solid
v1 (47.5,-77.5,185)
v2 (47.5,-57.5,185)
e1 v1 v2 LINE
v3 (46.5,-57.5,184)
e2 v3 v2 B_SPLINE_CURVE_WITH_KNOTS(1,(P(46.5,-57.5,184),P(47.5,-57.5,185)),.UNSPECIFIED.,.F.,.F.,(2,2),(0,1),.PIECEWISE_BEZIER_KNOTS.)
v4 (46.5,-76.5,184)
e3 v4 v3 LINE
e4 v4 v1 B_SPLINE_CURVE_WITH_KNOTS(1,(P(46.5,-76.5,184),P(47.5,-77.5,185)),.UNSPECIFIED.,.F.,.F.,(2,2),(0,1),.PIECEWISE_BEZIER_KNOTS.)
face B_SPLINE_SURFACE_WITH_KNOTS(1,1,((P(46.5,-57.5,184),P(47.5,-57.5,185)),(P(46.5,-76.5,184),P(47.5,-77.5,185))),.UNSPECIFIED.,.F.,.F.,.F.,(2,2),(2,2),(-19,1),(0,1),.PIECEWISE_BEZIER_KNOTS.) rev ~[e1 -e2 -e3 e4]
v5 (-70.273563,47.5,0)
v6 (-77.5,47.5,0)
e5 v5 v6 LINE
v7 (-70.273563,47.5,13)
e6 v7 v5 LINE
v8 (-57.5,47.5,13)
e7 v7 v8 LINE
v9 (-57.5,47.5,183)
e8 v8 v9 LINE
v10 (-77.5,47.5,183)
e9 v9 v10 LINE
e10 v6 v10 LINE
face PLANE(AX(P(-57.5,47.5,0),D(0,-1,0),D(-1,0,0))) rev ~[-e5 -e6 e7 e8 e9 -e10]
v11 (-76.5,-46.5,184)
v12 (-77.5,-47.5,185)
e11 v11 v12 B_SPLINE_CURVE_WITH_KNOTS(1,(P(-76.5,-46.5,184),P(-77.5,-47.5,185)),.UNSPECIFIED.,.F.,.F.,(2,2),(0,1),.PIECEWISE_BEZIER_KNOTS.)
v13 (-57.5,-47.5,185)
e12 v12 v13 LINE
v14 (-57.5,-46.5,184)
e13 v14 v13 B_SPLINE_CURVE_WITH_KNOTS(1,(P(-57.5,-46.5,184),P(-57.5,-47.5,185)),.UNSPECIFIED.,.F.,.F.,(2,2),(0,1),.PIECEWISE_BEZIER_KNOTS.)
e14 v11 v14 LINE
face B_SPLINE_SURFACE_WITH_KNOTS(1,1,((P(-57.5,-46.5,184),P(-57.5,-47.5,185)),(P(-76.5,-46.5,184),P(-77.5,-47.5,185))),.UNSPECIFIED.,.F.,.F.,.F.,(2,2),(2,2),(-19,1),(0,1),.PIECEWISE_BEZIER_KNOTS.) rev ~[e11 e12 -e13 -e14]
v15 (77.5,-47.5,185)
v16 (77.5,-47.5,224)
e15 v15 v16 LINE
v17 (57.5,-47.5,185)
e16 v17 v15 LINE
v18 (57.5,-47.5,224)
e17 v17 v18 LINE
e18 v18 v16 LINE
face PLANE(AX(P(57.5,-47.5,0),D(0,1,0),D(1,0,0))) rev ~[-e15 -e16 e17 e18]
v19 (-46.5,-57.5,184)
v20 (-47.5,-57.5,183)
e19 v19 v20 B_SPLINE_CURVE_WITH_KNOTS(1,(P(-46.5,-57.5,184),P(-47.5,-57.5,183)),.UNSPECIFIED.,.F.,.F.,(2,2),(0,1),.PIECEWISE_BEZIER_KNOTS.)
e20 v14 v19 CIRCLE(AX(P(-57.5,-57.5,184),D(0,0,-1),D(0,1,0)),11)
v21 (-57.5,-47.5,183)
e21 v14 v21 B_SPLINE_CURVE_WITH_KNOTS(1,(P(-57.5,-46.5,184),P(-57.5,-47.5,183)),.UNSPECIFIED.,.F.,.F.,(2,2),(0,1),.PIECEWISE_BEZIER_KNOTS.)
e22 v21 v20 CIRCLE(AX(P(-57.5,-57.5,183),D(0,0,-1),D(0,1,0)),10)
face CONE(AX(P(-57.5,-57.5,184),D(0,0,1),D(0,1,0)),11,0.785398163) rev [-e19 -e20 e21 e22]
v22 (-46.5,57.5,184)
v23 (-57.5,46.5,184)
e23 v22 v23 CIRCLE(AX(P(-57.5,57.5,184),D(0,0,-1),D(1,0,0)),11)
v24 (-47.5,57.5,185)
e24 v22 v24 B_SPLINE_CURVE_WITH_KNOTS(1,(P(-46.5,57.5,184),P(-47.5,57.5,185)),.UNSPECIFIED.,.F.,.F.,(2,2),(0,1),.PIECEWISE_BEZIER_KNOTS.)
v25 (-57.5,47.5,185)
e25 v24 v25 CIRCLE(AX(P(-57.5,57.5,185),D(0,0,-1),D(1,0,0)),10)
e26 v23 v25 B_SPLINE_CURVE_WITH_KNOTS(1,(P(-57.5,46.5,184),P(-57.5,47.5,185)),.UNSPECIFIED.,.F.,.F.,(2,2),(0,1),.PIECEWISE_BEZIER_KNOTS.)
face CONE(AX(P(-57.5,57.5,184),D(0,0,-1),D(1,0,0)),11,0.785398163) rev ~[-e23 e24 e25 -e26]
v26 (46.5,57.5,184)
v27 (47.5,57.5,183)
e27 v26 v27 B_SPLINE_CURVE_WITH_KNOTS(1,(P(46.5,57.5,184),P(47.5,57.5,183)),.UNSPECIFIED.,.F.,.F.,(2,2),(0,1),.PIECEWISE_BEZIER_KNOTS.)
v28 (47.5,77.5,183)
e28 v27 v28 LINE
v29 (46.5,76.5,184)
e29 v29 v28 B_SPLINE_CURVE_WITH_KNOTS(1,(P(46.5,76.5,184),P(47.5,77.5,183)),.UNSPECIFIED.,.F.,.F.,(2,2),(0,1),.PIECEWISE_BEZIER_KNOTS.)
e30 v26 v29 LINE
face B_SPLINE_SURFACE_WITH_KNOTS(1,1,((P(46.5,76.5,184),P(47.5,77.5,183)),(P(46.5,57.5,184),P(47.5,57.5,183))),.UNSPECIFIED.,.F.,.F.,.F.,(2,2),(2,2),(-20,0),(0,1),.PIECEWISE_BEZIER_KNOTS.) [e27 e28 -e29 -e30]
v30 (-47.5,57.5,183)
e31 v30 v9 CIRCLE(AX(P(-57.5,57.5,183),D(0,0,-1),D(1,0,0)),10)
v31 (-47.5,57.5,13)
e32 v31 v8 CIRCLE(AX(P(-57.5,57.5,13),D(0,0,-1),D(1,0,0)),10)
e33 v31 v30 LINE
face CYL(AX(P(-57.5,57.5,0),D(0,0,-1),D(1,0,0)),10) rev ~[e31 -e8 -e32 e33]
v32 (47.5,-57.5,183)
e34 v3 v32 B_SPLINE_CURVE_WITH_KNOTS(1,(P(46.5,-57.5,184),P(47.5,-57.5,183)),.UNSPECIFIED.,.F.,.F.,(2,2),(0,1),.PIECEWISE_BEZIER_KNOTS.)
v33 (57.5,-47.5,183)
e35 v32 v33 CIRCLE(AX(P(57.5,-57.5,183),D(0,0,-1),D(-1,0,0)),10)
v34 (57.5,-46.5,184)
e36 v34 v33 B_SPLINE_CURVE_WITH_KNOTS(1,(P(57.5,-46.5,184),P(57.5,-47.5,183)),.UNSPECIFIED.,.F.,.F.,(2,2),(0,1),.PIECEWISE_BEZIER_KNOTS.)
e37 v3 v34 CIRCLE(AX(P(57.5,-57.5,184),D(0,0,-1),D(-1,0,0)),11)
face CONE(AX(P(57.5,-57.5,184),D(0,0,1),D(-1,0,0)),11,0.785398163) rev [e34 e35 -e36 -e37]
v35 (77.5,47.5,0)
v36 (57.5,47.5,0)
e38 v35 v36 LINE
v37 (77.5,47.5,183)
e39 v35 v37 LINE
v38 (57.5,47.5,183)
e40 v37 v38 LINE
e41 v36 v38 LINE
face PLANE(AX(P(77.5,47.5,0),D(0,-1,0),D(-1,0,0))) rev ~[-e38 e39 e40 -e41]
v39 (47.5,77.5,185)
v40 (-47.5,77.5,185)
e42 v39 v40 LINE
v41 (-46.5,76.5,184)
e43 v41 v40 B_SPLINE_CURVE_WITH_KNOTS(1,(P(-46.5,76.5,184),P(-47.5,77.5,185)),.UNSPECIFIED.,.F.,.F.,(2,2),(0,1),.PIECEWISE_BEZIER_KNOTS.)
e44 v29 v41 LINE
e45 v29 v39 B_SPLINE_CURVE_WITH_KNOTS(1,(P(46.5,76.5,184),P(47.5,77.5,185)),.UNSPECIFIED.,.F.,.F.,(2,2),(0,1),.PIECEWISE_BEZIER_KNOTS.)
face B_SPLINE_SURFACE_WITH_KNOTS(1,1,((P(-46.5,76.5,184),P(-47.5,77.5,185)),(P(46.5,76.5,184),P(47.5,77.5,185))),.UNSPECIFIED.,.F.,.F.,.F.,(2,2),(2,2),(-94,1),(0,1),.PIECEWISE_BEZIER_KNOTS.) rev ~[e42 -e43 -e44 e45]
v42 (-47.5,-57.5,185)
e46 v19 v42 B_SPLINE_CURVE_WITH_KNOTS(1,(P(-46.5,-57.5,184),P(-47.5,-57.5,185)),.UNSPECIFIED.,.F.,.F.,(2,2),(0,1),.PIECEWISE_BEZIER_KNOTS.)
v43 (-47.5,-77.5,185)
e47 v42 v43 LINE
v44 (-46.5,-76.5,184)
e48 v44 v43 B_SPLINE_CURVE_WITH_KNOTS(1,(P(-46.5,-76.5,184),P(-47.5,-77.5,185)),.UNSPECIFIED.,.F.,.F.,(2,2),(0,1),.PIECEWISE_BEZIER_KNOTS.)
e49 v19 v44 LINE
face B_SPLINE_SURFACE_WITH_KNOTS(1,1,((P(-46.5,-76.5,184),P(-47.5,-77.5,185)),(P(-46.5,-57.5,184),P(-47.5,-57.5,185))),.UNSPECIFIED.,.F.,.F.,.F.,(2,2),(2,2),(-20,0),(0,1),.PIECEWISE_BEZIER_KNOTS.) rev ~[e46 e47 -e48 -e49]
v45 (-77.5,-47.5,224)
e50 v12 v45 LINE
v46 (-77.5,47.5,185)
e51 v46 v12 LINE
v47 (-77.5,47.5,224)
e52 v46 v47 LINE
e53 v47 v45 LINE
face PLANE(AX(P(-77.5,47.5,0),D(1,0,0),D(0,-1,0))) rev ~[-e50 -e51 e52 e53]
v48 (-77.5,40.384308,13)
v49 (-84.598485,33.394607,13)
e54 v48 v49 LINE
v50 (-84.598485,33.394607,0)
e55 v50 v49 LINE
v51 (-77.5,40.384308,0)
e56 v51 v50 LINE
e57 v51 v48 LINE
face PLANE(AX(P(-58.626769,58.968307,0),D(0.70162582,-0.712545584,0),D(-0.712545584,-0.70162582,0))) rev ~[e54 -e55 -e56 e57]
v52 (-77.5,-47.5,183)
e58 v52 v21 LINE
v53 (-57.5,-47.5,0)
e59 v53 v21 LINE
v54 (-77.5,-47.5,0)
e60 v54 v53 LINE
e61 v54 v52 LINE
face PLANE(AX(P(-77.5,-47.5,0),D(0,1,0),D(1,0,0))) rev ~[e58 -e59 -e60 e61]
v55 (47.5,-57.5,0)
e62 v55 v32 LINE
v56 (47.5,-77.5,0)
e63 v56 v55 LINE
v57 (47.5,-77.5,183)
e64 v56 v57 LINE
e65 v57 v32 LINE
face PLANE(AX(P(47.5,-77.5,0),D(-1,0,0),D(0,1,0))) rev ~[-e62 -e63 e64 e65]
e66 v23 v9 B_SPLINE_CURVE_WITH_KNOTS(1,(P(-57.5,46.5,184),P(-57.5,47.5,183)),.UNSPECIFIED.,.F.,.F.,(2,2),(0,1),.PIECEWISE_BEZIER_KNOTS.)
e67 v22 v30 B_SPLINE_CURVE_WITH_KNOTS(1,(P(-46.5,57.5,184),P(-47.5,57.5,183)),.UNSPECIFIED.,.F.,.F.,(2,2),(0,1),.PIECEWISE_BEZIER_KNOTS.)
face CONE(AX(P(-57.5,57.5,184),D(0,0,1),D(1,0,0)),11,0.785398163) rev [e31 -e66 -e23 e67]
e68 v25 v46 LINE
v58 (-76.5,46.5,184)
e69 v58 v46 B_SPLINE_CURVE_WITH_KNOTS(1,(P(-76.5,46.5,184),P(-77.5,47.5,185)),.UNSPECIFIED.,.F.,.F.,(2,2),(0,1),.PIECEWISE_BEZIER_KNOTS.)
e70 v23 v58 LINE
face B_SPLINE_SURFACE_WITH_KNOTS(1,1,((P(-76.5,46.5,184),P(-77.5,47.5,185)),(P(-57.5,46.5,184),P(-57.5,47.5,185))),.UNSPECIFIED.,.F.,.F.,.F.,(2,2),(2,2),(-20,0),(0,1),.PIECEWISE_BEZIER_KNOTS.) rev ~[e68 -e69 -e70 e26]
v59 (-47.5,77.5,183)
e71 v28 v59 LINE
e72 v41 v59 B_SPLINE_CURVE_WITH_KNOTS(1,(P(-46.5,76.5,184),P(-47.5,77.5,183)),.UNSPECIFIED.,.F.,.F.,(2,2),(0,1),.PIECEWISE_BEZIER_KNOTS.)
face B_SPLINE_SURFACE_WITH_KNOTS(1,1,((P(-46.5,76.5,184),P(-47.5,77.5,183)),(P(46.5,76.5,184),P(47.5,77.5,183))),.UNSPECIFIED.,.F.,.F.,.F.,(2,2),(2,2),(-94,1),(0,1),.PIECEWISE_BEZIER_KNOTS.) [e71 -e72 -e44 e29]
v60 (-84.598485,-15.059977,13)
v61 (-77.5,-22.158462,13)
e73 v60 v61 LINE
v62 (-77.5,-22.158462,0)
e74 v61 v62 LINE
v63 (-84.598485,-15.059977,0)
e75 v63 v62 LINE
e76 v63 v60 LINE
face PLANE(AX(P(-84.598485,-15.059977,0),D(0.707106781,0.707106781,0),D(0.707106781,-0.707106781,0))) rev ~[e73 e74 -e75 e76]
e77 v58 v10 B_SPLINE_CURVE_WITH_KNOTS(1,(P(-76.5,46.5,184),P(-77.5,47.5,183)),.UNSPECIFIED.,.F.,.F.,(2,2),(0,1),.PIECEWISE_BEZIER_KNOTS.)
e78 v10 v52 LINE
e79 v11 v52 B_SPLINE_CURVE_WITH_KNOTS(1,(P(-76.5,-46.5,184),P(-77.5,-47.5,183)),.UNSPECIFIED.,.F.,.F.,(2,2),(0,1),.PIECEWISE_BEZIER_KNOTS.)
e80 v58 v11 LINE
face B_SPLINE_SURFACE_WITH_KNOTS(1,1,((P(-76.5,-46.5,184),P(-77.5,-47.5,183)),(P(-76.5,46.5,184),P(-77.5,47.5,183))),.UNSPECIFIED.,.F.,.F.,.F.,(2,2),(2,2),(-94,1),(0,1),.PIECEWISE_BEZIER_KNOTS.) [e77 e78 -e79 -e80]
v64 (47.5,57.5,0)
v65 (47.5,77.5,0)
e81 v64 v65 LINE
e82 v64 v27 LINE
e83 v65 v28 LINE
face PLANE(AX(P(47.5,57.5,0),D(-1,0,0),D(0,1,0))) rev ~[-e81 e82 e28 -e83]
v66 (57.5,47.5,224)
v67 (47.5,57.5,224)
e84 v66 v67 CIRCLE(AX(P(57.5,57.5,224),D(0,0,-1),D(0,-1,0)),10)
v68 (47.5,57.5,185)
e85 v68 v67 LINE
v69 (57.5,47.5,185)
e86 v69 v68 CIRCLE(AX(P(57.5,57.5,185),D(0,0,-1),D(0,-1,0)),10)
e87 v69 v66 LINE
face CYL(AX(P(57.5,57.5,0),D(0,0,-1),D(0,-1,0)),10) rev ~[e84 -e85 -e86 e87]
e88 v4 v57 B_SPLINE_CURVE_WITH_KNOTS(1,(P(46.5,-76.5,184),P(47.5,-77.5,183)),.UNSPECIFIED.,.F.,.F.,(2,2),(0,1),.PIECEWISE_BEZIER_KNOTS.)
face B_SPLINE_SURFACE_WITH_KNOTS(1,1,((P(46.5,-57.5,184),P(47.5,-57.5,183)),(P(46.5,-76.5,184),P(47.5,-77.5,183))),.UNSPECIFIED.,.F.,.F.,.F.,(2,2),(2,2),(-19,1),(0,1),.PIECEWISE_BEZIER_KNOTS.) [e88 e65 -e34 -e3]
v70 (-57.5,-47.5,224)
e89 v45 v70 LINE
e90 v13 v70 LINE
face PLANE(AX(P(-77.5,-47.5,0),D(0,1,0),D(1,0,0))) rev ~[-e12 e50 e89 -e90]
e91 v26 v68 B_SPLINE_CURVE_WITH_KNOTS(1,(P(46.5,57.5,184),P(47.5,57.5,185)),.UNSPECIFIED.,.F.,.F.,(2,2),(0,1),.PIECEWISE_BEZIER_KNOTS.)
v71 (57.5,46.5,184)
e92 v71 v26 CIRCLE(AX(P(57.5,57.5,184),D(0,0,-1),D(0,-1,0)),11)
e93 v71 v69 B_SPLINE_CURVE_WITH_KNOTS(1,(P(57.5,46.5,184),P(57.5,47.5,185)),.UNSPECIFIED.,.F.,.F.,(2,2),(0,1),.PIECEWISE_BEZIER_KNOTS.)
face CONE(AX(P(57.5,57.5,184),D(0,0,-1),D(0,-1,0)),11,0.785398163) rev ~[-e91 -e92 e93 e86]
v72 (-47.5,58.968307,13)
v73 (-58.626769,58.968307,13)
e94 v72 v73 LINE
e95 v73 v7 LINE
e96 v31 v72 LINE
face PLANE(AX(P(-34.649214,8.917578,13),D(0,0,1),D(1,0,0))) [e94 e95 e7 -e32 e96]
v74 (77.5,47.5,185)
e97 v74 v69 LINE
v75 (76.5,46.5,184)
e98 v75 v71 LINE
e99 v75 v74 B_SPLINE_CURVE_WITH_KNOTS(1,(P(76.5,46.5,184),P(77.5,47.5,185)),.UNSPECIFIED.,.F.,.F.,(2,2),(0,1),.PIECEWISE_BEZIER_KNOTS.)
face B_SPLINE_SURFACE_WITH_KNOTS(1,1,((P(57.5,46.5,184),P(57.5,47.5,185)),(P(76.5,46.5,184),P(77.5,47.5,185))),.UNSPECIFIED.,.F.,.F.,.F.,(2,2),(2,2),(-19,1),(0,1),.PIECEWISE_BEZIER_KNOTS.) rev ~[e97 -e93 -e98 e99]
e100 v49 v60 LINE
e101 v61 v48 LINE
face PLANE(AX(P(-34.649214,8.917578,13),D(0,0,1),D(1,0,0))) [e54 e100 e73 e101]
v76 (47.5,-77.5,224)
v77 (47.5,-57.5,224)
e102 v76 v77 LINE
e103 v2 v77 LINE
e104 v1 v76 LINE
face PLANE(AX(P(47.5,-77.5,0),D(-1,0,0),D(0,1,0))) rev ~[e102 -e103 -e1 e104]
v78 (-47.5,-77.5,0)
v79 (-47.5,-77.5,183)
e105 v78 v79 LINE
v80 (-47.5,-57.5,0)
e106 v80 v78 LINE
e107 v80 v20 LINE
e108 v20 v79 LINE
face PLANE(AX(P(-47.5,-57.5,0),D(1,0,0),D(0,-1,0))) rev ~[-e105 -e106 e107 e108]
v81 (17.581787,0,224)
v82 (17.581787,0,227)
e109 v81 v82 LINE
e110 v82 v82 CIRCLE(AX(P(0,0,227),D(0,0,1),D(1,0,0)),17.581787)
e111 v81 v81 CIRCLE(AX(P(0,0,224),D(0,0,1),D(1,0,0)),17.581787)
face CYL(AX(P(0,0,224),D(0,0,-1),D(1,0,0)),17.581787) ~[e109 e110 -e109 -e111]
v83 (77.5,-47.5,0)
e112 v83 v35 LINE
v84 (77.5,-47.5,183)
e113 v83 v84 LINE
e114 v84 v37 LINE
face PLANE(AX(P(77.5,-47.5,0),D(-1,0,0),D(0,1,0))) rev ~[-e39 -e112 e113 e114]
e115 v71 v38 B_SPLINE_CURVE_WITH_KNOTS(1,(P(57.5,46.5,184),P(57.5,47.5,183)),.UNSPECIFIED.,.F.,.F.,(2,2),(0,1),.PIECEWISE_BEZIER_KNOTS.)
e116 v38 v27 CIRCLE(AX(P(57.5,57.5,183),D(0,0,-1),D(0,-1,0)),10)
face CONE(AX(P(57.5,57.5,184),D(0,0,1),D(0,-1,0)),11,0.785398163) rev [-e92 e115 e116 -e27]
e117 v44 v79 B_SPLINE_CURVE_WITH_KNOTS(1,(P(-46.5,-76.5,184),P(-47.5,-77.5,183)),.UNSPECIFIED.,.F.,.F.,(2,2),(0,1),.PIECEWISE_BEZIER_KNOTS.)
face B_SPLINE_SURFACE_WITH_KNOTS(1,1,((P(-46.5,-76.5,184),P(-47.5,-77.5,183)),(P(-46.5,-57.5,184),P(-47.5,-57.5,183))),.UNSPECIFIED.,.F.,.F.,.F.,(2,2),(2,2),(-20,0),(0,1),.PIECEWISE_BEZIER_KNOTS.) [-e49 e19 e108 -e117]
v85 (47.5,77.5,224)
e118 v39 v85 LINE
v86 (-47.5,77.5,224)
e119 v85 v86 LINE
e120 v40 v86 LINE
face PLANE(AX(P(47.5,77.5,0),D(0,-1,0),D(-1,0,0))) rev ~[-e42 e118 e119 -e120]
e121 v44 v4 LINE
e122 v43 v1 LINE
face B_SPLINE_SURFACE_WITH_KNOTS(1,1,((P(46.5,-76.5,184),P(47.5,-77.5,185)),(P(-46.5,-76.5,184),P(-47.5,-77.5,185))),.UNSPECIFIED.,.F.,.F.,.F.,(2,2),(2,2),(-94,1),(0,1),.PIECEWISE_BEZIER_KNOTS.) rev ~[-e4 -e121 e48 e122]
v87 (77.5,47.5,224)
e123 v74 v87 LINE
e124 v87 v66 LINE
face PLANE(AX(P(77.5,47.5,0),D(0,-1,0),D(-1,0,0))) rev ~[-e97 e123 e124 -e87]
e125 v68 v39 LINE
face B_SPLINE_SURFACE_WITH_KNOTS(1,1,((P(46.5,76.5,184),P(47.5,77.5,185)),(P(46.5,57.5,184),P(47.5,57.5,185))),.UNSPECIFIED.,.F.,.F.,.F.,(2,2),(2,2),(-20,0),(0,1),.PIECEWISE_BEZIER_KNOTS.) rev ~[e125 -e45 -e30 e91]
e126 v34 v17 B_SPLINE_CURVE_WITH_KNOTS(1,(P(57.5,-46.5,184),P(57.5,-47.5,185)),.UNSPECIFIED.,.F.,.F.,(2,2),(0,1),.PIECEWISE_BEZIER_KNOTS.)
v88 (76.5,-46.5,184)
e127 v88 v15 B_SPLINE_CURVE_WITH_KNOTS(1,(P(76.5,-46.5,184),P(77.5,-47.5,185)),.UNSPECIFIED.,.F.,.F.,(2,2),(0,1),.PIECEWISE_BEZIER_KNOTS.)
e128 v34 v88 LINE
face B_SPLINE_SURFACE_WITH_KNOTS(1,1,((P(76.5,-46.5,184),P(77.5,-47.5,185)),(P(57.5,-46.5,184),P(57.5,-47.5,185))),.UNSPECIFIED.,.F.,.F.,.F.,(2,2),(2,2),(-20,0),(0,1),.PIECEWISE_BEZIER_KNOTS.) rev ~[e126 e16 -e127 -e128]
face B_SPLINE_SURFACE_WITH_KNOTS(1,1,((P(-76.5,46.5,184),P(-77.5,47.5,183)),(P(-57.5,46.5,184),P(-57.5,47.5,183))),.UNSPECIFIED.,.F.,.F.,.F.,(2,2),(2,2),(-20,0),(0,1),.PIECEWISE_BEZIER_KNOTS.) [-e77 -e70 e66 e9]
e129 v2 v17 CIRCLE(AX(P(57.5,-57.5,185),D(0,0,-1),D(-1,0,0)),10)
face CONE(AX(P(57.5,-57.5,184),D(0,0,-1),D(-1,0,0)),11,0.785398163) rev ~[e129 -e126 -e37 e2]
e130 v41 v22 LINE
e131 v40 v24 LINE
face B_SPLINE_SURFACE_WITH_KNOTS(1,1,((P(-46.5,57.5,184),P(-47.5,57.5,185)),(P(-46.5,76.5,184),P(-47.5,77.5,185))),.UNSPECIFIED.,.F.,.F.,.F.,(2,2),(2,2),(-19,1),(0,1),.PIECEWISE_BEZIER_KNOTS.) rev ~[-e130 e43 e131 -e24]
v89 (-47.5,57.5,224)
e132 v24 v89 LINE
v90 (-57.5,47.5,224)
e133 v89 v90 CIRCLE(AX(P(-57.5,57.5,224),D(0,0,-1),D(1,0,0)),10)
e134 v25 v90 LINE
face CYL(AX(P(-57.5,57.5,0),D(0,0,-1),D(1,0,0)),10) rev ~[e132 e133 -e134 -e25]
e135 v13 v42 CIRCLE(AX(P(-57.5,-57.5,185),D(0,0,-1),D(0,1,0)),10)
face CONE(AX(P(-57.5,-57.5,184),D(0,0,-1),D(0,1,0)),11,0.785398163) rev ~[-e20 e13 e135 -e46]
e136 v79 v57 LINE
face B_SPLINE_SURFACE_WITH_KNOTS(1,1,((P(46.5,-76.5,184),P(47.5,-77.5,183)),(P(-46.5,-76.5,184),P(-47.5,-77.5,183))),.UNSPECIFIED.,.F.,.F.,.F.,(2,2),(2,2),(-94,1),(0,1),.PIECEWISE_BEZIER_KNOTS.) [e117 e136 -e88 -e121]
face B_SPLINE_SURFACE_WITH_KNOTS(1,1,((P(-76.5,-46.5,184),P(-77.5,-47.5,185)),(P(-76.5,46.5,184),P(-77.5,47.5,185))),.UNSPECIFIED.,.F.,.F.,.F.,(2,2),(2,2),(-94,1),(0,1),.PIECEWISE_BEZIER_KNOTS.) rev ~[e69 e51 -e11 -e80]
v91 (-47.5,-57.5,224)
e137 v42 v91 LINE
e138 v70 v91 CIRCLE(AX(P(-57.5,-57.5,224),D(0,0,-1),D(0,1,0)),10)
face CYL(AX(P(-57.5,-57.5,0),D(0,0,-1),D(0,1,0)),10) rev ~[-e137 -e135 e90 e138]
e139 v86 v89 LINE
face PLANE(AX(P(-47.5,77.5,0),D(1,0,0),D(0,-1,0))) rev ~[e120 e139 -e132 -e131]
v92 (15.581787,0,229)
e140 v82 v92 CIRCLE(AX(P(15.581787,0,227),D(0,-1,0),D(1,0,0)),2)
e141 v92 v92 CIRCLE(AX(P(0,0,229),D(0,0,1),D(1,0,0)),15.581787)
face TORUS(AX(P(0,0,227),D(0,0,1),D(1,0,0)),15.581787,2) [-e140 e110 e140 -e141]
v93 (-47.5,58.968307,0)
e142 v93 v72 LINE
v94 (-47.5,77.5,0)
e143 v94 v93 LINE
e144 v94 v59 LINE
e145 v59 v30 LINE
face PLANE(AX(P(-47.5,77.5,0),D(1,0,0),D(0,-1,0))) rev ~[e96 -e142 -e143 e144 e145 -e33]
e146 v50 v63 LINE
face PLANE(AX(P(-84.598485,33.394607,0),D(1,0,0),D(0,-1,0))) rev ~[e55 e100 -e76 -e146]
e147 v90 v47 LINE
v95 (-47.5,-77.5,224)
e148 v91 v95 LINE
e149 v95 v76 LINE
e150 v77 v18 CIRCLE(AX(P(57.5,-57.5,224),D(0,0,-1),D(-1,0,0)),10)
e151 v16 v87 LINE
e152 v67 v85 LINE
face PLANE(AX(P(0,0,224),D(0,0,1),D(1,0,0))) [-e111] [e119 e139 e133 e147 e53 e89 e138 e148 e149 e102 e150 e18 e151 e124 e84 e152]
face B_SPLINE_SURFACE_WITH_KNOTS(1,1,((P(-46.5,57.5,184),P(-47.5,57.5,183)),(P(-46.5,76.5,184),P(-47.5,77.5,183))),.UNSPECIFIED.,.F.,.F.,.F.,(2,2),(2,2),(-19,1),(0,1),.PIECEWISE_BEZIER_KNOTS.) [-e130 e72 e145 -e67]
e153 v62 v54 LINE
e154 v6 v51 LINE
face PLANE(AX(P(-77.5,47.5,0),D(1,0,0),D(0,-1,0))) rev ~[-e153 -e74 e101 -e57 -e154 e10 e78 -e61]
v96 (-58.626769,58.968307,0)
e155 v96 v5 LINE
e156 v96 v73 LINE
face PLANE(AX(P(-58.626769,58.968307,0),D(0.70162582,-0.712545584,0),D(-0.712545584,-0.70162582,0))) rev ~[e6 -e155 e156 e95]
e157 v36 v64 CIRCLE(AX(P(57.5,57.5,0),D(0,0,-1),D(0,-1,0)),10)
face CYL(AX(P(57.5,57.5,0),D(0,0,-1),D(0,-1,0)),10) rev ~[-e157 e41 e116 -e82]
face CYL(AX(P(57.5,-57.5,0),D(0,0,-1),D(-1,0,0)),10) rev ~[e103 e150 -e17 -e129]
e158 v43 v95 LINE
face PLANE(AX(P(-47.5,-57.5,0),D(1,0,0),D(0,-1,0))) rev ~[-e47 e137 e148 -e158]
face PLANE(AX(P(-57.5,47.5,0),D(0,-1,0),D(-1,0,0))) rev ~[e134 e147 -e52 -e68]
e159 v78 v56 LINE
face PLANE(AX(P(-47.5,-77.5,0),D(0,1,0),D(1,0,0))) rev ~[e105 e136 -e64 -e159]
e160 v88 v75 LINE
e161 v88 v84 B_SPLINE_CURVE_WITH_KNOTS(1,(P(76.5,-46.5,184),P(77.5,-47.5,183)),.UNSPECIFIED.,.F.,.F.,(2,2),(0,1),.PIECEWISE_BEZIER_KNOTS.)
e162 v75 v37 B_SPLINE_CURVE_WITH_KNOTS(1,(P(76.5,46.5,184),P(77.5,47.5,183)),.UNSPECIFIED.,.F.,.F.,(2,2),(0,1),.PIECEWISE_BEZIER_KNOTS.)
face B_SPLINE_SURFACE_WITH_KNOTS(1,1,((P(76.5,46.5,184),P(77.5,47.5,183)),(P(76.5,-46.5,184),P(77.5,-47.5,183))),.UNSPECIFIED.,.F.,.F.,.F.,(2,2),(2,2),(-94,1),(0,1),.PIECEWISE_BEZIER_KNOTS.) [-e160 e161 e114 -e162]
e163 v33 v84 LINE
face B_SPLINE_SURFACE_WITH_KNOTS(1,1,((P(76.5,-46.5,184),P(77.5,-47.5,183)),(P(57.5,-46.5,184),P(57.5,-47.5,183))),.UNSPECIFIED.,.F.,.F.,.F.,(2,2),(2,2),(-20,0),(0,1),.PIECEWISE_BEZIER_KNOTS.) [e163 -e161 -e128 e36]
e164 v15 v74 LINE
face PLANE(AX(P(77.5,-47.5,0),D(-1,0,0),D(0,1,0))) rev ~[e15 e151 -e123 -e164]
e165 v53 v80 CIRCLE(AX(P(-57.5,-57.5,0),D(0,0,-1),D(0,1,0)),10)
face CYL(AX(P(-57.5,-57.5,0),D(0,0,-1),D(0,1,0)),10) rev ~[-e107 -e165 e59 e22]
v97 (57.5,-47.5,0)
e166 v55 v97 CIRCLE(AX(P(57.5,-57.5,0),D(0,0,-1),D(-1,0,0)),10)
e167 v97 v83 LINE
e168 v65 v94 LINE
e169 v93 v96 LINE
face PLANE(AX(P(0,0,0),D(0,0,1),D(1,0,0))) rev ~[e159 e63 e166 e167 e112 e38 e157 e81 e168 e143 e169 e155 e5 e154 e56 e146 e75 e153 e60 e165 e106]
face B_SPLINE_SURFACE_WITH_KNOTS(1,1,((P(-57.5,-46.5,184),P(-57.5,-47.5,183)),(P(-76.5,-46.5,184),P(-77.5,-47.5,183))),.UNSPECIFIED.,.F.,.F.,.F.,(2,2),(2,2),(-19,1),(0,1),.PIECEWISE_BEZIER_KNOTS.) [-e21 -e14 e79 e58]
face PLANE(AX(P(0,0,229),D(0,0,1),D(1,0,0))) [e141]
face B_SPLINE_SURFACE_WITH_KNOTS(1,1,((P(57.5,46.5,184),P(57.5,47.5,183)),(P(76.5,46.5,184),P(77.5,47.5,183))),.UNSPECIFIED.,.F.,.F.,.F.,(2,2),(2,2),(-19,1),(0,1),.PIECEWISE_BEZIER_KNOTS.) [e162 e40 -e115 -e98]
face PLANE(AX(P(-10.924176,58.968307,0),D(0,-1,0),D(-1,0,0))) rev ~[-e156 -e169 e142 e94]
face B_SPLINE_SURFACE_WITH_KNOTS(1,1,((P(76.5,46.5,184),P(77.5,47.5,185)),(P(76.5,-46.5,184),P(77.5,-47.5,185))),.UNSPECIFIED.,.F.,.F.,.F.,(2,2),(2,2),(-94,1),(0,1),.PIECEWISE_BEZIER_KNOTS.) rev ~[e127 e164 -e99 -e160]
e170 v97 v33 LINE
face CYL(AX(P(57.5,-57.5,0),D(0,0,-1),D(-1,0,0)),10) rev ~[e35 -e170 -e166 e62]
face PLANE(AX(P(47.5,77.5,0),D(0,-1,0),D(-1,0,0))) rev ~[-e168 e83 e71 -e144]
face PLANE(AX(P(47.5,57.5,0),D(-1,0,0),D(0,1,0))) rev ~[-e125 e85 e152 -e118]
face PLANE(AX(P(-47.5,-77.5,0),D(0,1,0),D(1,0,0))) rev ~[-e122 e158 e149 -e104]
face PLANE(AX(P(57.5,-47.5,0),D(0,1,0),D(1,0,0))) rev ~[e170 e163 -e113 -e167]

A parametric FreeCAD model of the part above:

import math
import FreeCAD as App
import Part
import Sketcher
Q = App.Units.Quantity


def edges_at(feature, points):
    """Names of the edges that pass closest to the given points."""
    edges = feature.Shape.Edges
    near = lambda p: min(range(len(edges)), key=lambda i: edges[i].distToShape(Part.Vertex(*p))[0])
    return sorted({f"Edge{near(p) + 1}" for p in points})


def add_polygon(sketch, points):
    """Adds a closed chain of lines whose ends are joined by coincident constraints."""
    first, n = sketch.GeometryCount, len(points)
    for a, b in zip(points, points[1:] + points[:1]):
        sketch.addGeometry(Part.LineSegment(App.Vector(*a, 0), App.Vector(*b, 0)), False)
    for i in range(n):
        sketch.addConstraint(Sketcher.Constraint("Coincident", first + i, 2, first + (i + 1) % n, 1))

doc = App.newDocument("Part")
body = doc.addObject("PartDesign::Body", "Body")

# Sketch on XY plane
sketch1 = body.newObject("Sketcher::SketchObject", "Sketch")
sketch1.AttachmentSupport = (doc.getObject("XY_Plane"), [""])
sketch1.MapMode = "FlatFace"
add_polygon(sketch1, [(-59, 59), (-85, 33), (-85, -15), (-59, -41), (-10, -41), (15, -15), (15, 33), (-11, 59)])  # lines 0-7
sketch1.addConstraint(Sketcher.Constraint("Vertical", 1))
sketch1.addConstraint(Sketcher.Constraint("Horizontal", 3))
sketch1.addConstraint(Sketcher.Constraint("Vertical", 5))
sketch1.addConstraint(Sketcher.Constraint("Horizontal", 7))
sketch1.addConstraint(Sketcher.Constraint("Parallel", 2, 6))
sketch1.addConstraint(Sketcher.Constraint("Horizontal", 1, 2, 4, 2))
sketch1.addConstraint(Sketcher.Constraint("Vertical", 2, 2, 7, 2))
sketch1.addConstraint(Sketcher.Constraint("Equal", 3, 1))
sketch1.addConstraint(Sketcher.Constraint("Equal", 7, 5))
sketch1.addConstraint(Sketcher.Constraint("Angle", 2, Q("-45 deg")))
sketch1.addConstraint(Sketcher.Constraint("DistanceX", 1, 2, 4, 2, Q("100 mm")))
sketch1.addConstraint(Sketcher.Constraint("Distance", 0, Q("36.449199 mm")))
sketch1.addConstraint(Sketcher.Constraint("DistanceY", 2, 2, 0, 2, Q("74.426301 mm")))
sketch1.addConstraint(Sketcher.Constraint("Distance", 6, Q("37.23015 mm")))
sketch1.addConstraint(Sketcher.Constraint("DistanceX", 2, 2, -1, 1, Q("58.626769 mm")))
sketch1.addConstraint(Sketcher.Constraint("DistanceY", -1, 1, 0, 2, Q("33.394607 mm")))
pad1 = body.newObject("PartDesign::Pad", "Pad")
pad1.Profile = sketch1
pad1.Length = 13

# Sketch on XY plane
sketch2 = body.newObject("Sketcher::SketchObject", "Sketch001")
sketch2.AttachmentSupport = (doc.getObject("XY_Plane"), [""])
sketch2.MapMode = "FlatFace"
sketch2.addGeometry(Part.LineSegment(App.Vector(48, 58, 0), App.Vector(48, 78, 0)), False)
sketch2.addGeometry(Part.LineSegment(App.Vector(48, 78, 0), App.Vector(-48, 78, 0)), False)
sketch2.addGeometry(Part.LineSegment(App.Vector(-48, 78, 0), App.Vector(-48, 58, 0)), False)
sketch2.addGeometry(Part.ArcOfCircle(Part.Circle(App.Vector(-58, 58, 0), App.Vector(0, 0, 1), 10), math.radians(-90), math.radians(0)), False)
sketch2.addGeometry(Part.LineSegment(App.Vector(-58, 48, 0), App.Vector(-78, 48, 0)), False)
sketch2.addGeometry(Part.LineSegment(App.Vector(-78, 48, 0), App.Vector(-78, -48, 0)), False)
sketch2.addGeometry(Part.LineSegment(App.Vector(-78, -48, 0), App.Vector(-58, -48, 0)), False)
sketch2.addGeometry(Part.ArcOfCircle(Part.Circle(App.Vector(-58, -58, 0), App.Vector(0, 0, 1), 10), math.radians(0), math.radians(90)), False)
sketch2.addGeometry(Part.LineSegment(App.Vector(-48, -58, 0), App.Vector(-48, -78, 0)), False)
sketch2.addGeometry(Part.LineSegment(App.Vector(-48, -78, 0), App.Vector(48, -78, 0)), False)
sketch2.addGeometry(Part.LineSegment(App.Vector(48, -78, 0), App.Vector(48, -58, 0)), False)
sketch2.addGeometry(Part.ArcOfCircle(Part.Circle(App.Vector(58, -58, 0), App.Vector(0, 0, 1), 10), math.radians(90), math.radians(180)), False)
sketch2.addGeometry(Part.LineSegment(App.Vector(58, -48, 0), App.Vector(78, -48, 0)), False)
sketch2.addGeometry(Part.LineSegment(App.Vector(78, -48, 0), App.Vector(78, 48, 0)), False)
sketch2.addGeometry(Part.LineSegment(App.Vector(78, 48, 0), App.Vector(58, 48, 0)), False)
sketch2.addGeometry(Part.ArcOfCircle(Part.Circle(App.Vector(58, 58, 0), App.Vector(0, 0, 1), 10), math.radians(180), math.radians(270)), False)
sketch2.addConstraint(Sketcher.Constraint("Coincident", 0, 2, 1, 1))
sketch2.addConstraint(Sketcher.Constraint("Coincident", 1, 2, 2, 1))
sketch2.addConstraint(Sketcher.Constraint("Tangent", 2, 2, 3, 2))
sketch2.addConstraint(Sketcher.Constraint("Tangent", 3, 1, 4, 1))
sketch2.addConstraint(Sketcher.Constraint("Coincident", 4, 2, 5, 1))
sketch2.addConstraint(Sketcher.Constraint("Coincident", 5, 2, 6, 1))
sketch2.addConstraint(Sketcher.Constraint("Tangent", 6, 2, 7, 2))
sketch2.addConstraint(Sketcher.Constraint("Tangent", 7, 1, 8, 1))
sketch2.addConstraint(Sketcher.Constraint("Coincident", 8, 2, 9, 1))
sketch2.addConstraint(Sketcher.Constraint("Coincident", 9, 2, 10, 1))
sketch2.addConstraint(Sketcher.Constraint("Tangent", 10, 2, 11, 2))
sketch2.addConstraint(Sketcher.Constraint("Tangent", 11, 1, 12, 1))
sketch2.addConstraint(Sketcher.Constraint("Coincident", 12, 2, 13, 1))
sketch2.addConstraint(Sketcher.Constraint("Coincident", 13, 2, 14, 1))
sketch2.addConstraint(Sketcher.Constraint("Tangent", 14, 2, 15, 2))
sketch2.addConstraint(Sketcher.Constraint("Tangent", 15, 1, 0, 1))
sketch2.addConstraint(Sketcher.Constraint("Vertical", 0))
sketch2.addConstraint(Sketcher.Constraint("Horizontal", 1))
sketch2.addConstraint(Sketcher.Constraint("Vertical", 2))
sketch2.addConstraint(Sketcher.Constraint("Horizontal", 4))
sketch2.addConstraint(Sketcher.Constraint("Vertical", 5))
sketch2.addConstraint(Sketcher.Constraint("Horizontal", 6))
sketch2.addConstraint(Sketcher.Constraint("Vertical", 8))
sketch2.addConstraint(Sketcher.Constraint("Horizontal", 9))
sketch2.addConstraint(Sketcher.Constraint("Vertical", 10))
sketch2.addConstraint(Sketcher.Constraint("Horizontal", 12))
sketch2.addConstraint(Sketcher.Constraint("Vertical", 13))
sketch2.addConstraint(Sketcher.Constraint("Horizontal", 14))
sketch2.addConstraint(Sketcher.Constraint("Equal", 3, 7))
sketch2.addConstraint(Sketcher.Constraint("Equal", 7, 11))
sketch2.addConstraint(Sketcher.Constraint("Equal", 11, 15))
sketch2.addConstraint(Sketcher.Constraint("Symmetric", 3, 3, 11, 3, -1, 1))
sketch2.addConstraint(Sketcher.Constraint("Symmetric", 7, 3, 15, 3, -1, 1))
sketch2.addConstraint(Sketcher.Constraint("Symmetric", 7, 3, 11, 3, -2))
sketch2.addConstraint(Sketcher.Constraint("Equal", 6, 12))
sketch2.addConstraint(Sketcher.Constraint("Equal", 14, 0))
sketch2.addConstraint(Sketcher.Constraint("Equal", 9, 5))
sketch2.addConstraint(Sketcher.Constraint("Equal", 2, 8))
sketch2.addConstraint(Sketcher.Constraint("Radius", 3, Q("10 mm")))
sketch2.addConstraint(Sketcher.Constraint("DistanceX", 1, 2, 1, 1, Q("95 mm")))
sketch2.addConstraint(Sketcher.Constraint("DistanceX", 4, 2, 4, 1, Q("20 mm")))
pad2 = body.newObject("PartDesign::Pad", "Pad001")
pad2.Profile = sketch2
pad2.Length = 224

# Sketch on XY plane
sketch3 = body.newObject("Sketcher::SketchObject", "Sketch002")
sketch3.AttachmentSupport = (doc.getObject("XY_Plane"), [""])
sketch3.MapMode = "FlatFace"
sketch3.AttachmentOffset = App.Placement(App.Vector(0, 0, 184), App.Rotation())
sketch3.addGeometry(Part.LineSegment(App.Vector(57.5, -56.5, 0), App.Vector(86.5, -56.5, 0)), False)
sketch3.addGeometry(Part.LineSegment(App.Vector(86.5, -56.5, 0), App.Vector(86.5, 56.5, 0)), False)
sketch3.addGeometry(Part.LineSegment(App.Vector(86.5, 56.5, 0), App.Vector(57.5, 56.5, 0)), False)
sketch3.addGeometry(Part.ArcOfCircle(Part.Circle(App.Vector(57.5, 57.5, 0), App.Vector(0, 0, 1), 1), math.radians(-180), math.radians(-90)), False)
sketch3.addGeometry(Part.LineSegment(App.Vector(56.5, 57.5, 0), App.Vector(56.5, 86.5, 0)), False)
sketch3.addGeometry(Part.LineSegment(App.Vector(56.5, 86.5, 0), App.Vector(-56.5, 86.5, 0)), False)
sketch3.addGeometry(Part.LineSegment(App.Vector(-56.5, 86.5, 0), App.Vector(-56.5, 57.5, 0)), False)
sketch3.addGeometry(Part.ArcOfCircle(Part.Circle(App.Vector(-57.5, 57.5, 0), App.Vector(0, 0, 1), 1), math.radians(-90), math.radians(0)), False)
sketch3.addGeometry(Part.LineSegment(App.Vector(-57.5, 56.5, 0), App.Vector(-86.5, 56.5, 0)), False)
sketch3.addGeometry(Part.LineSegment(App.Vector(-86.5, 56.5, 0), App.Vector(-86.5, -56.5, 0)), False)
sketch3.addGeometry(Part.LineSegment(App.Vector(-86.5, -56.5, 0), App.Vector(-57.5, -56.5, 0)), False)
sketch3.addGeometry(Part.ArcOfCircle(Part.Circle(App.Vector(-57.5, -57.5, 0), App.Vector(0, 0, 1), 1), math.radians(0), math.radians(90)), False)
sketch3.addGeometry(Part.LineSegment(App.Vector(-56.5, -57.5, 0), App.Vector(-56.5, -86.5, 0)), False)
sketch3.addGeometry(Part.LineSegment(App.Vector(-56.5, -86.5, 0), App.Vector(56.5, -86.5, 0)), False)
sketch3.addGeometry(Part.LineSegment(App.Vector(56.5, -86.5, 0), App.Vector(56.5, -57.5, 0)), False)
sketch3.addGeometry(Part.ArcOfCircle(Part.Circle(App.Vector(57.5, -57.5, 0), App.Vector(0, 0, 1), 1), math.radians(90), math.radians(180)), False)
sketch3.addGeometry(Part.LineSegment(App.Vector(46.5, -76.5, 0), App.Vector(-46.5, -76.5, 0)), False)
sketch3.addGeometry(Part.LineSegment(App.Vector(-46.5, -76.5, 0), App.Vector(-46.5, -57.5, 0)), False)
sketch3.addGeometry(Part.ArcOfCircle(Part.Circle(App.Vector(-57.5, -57.5, 0), App.Vector(0, 0, 1), 11), math.radians(0), math.radians(90)), False)
sketch3.addGeometry(Part.LineSegment(App.Vector(-57.5, -46.5, 0), App.Vector(-76.5, -46.5, 0)), False)
sketch3.addGeometry(Part.LineSegment(App.Vector(-76.5, -46.5, 0), App.Vector(-76.5, 46.5, 0)), False)
sketch3.addGeometry(Part.LineSegment(App.Vector(-76.5, 46.5, 0), App.Vector(-57.5, 46.5, 0)), False)
sketch3.addGeometry(Part.ArcOfCircle(Part.Circle(App.Vector(-57.5, 57.5, 0), App.Vector(0, 0, 1), 11), math.radians(-90), math.radians(0)), False)
sketch3.addGeometry(Part.LineSegment(App.Vector(-46.5, 57.5, 0), App.Vector(-46.5, 76.5, 0)), False)
sketch3.addGeometry(Part.LineSegment(App.Vector(-46.5, 76.5, 0), App.Vector(46.5, 76.5, 0)), False)
sketch3.addGeometry(Part.LineSegment(App.Vector(46.5, 76.5, 0), App.Vector(46.5, 57.5, 0)), False)
sketch3.addGeometry(Part.ArcOfCircle(Part.Circle(App.Vector(57.5, 57.5, 0), App.Vector(0, 0, 1), 11), math.radians(180), math.radians(270)), False)
sketch3.addGeometry(Part.LineSegment(App.Vector(57.5, 46.5, 0), App.Vector(76.5, 46.5, 0)), False)
sketch3.addGeometry(Part.LineSegment(App.Vector(76.5, 46.5, 0), App.Vector(76.5, -46.5, 0)), False)
sketch3.addGeometry(Part.LineSegment(App.Vector(76.5, -46.5, 0), App.Vector(57.5, -46.5, 0)), False)
sketch3.addGeometry(Part.ArcOfCircle(Part.Circle(App.Vector(57.5, -57.5, 0), App.Vector(0, 0, 1), 11), math.radians(90), math.radians(180)), False)
sketch3.addGeometry(Part.LineSegment(App.Vector(46.5, -57.5, 0), App.Vector(46.5, -76.5, 0)), False)
sketch3.addConstraint(Sketcher.Constraint("Coincident", 0, 2, 1, 1))
sketch3.addConstraint(Sketcher.Constraint("Coincident", 1, 2, 2, 1))
sketch3.addConstraint(Sketcher.Constraint("Tangent", 2, 2, 3, 2))
sketch3.addConstraint(Sketcher.Constraint("Tangent", 3, 1, 4, 1))
sketch3.addConstraint(Sketcher.Constraint("Coincident", 4, 2, 5, 1))
sketch3.addConstraint(Sketcher.Constraint("Coincident", 5, 2, 6, 1))
sketch3.addConstraint(Sketcher.Constraint("Tangent", 6, 2, 7, 2))
sketch3.addConstraint(Sketcher.Constraint("Tangent", 7, 1, 8, 1))
sketch3.addConstraint(Sketcher.Constraint("Coincident", 8, 2, 9, 1))
sketch3.addConstraint(Sketcher.Constraint("Coincident", 9, 2, 10, 1))
sketch3.addConstraint(Sketcher.Constraint("Tangent", 10, 2, 11, 2))
sketch3.addConstraint(Sketcher.Constraint("Tangent", 11, 1, 12, 1))
sketch3.addConstraint(Sketcher.Constraint("Coincident", 12, 2, 13, 1))
sketch3.addConstraint(Sketcher.Constraint("Coincident", 13, 2, 14, 1))
sketch3.addConstraint(Sketcher.Constraint("Tangent", 14, 2, 15, 2))
sketch3.addConstraint(Sketcher.Constraint("Tangent", 15, 1, 0, 1))
sketch3.addConstraint(Sketcher.Constraint("Coincident", 16, 2, 17, 1))
sketch3.addConstraint(Sketcher.Constraint("Tangent", 17, 2, 18, 1))
sketch3.addConstraint(Sketcher.Constraint("Tangent", 18, 2, 19, 1))
sketch3.addConstraint(Sketcher.Constraint("Coincident", 19, 2, 20, 1))
sketch3.addConstraint(Sketcher.Constraint("Coincident", 20, 2, 21, 1))
sketch3.addConstraint(Sketcher.Constraint("Tangent", 21, 2, 22, 1))
sketch3.addConstraint(Sketcher.Constraint("Tangent", 22, 2, 23, 1))
sketch3.addConstraint(Sketcher.Constraint("Coincident", 23, 2, 24, 1))
sketch3.addConstraint(Sketcher.Constraint("Coincident", 24, 2, 25, 1))
sketch3.addConstraint(Sketcher.Constraint("Tangent", 25, 2, 26, 1))
sketch3.addConstraint(Sketcher.Constraint("Tangent", 26, 2, 27, 1))
sketch3.addConstraint(Sketcher.Constraint("Coincident", 27, 2, 28, 1))
sketch3.addConstraint(Sketcher.Constraint("Coincident", 28, 2, 29, 1))
sketch3.addConstraint(Sketcher.Constraint("Tangent", 29, 2, 30, 1))
sketch3.addConstraint(Sketcher.Constraint("Tangent", 30, 2, 31, 1))
sketch3.addConstraint(Sketcher.Constraint("Coincident", 31, 2, 16, 1))
sketch3.addConstraint(Sketcher.Constraint("Horizontal", 0))
sketch3.addConstraint(Sketcher.Constraint("Vertical", 1))
sketch3.addConstraint(Sketcher.Constraint("Horizontal", 2))
sketch3.addConstraint(Sketcher.Constraint("Vertical", 4))
sketch3.addConstraint(Sketcher.Constraint("Horizontal", 5))
sketch3.addConstraint(Sketcher.Constraint("Vertical", 6))
sketch3.addConstraint(Sketcher.Constraint("Horizontal", 8))
sketch3.addConstraint(Sketcher.Constraint("Vertical", 9))
sketch3.addConstraint(Sketcher.Constraint("Horizontal", 10))
sketch3.addConstraint(Sketcher.Constraint("Vertical", 12))
sketch3.addConstraint(Sketcher.Constraint("Horizontal", 13))
sketch3.addConstraint(Sketcher.Constraint("Vertical", 14))
sketch3.addConstraint(Sketcher.Constraint("Horizontal", 16))
sketch3.addConstraint(Sketcher.Constraint("Vertical", 17))
sketch3.addConstraint(Sketcher.Constraint("Horizontal", 19))
sketch3.addConstraint(Sketcher.Constraint("Vertical", 20))
sketch3.addConstraint(Sketcher.Constraint("Horizontal", 21))
sketch3.addConstraint(Sketcher.Constraint("Vertical", 23))
sketch3.addConstraint(Sketcher.Constraint("Horizontal", 24))
sketch3.addConstraint(Sketcher.Constraint("Vertical", 25))
sketch3.addConstraint(Sketcher.Constraint("Horizontal", 27))
sketch3.addConstraint(Sketcher.Constraint("Vertical", 28))
sketch3.addConstraint(Sketcher.Constraint("Horizontal", 29))
sketch3.addConstraint(Sketcher.Constraint("Vertical", 31))
sketch3.addConstraint(Sketcher.Constraint("Coincident", 18, 3, 11, 3))
sketch3.addConstraint(Sketcher.Constraint("Coincident", 22, 3, 7, 3))
sketch3.addConstraint(Sketcher.Constraint("Coincident", 26, 3, 3, 3))
sketch3.addConstraint(Sketcher.Constraint("Coincident", 30, 3, 15, 3))
sketch3.addConstraint(Sketcher.Constraint("Equal", 3, 7))
sketch3.addConstraint(Sketcher.Constraint("Equal", 7, 11))
sketch3.addConstraint(Sketcher.Constraint("Equal", 11, 15))
sketch3.addConstraint(Sketcher.Constraint("Equal", 18, 22))
sketch3.addConstraint(Sketcher.Constraint("Equal", 22, 26))
sketch3.addConstraint(Sketcher.Constraint("Equal", 26, 30))
sketch3.addConstraint(Sketcher.Constraint("Symmetric", 3, 3, 11, 3, -1, 1))
sketch3.addConstraint(Sketcher.Constraint("Symmetric", 7, 3, 15, 3, -1, 1))
sketch3.addConstraint(Sketcher.Constraint("Symmetric", 3, 3, 7, 3, -2))
sketch3.addConstraint(Sketcher.Constraint("Equal", 2, 8))
sketch3.addConstraint(Sketcher.Constraint("Equal", 21, 27))
sketch3.addConstraint(Sketcher.Constraint("Equal", 13, 1))
sketch3.addConstraint(Sketcher.Constraint("Equal", 10, 4))
sketch3.addConstraint(Sketcher.Constraint("Equal", 6, 12))
sketch3.addConstraint(Sketcher.Constraint("Equal", 29, 17))
sketch3.addConstraint(Sketcher.Constraint("Equal", 17, 23))
sketch3.addConstraint(Sketcher.Constraint("Radius", 3, Q("1 mm")))
sketch3.addConstraint(Sketcher.Constraint("Radius", 18, Q("11 mm")))
sketch3.addConstraint(Sketcher.Constraint("DistanceX", 0, 1, 0, 2, Q("29 mm")))
sketch3.addConstraint(Sketcher.Constraint("DistanceX", 5, 2, 5, 1, Q("113 mm")))
sketch3.addConstraint(Sketcher.Constraint("DistanceX", 19, 2, 19, 1, Q("19 mm")))
pocket1 = body.newObject("PartDesign::Pocket", "Pocket")
pocket1.Profile = sketch3
pocket1.Length = 1
pocket1.TaperAngle = 45

# Sketch on XY plane
sketch4 = body.newObject("Sketcher::SketchObject", "Sketch003")
sketch4.AttachmentSupport = (doc.getObject("XY_Plane"), [""])
sketch4.MapMode = "FlatFace"
sketch4.AttachmentOffset = App.Placement(App.Vector(0, 0, 184), App.Rotation())
sketch4.addGeometry(Part.LineSegment(App.Vector(57.5, -56.5, 0), App.Vector(86.5, -56.5, 0)), False)
sketch4.addGeometry(Part.LineSegment(App.Vector(86.5, -56.5, 0), App.Vector(86.5, 56.5, 0)), False)
sketch4.addGeometry(Part.LineSegment(App.Vector(86.5, 56.5, 0), App.Vector(57.5, 56.5, 0)), False)
sketch4.addGeometry(Part.ArcOfCircle(Part.Circle(App.Vector(57.5, 57.5, 0), App.Vector(0, 0, 1), 1), math.radians(-180), math.radians(-90)), False)
sketch4.addGeometry(Part.LineSegment(App.Vector(56.5, 57.5, 0), App.Vector(56.5, 86.5, 0)), False)
sketch4.addGeometry(Part.LineSegment(App.Vector(56.5, 86.5, 0), App.Vector(-56.5, 86.5, 0)), False)
sketch4.addGeometry(Part.LineSegment(App.Vector(-56.5, 86.5, 0), App.Vector(-56.5, 57.5, 0)), False)
sketch4.addGeometry(Part.ArcOfCircle(Part.Circle(App.Vector(-57.5, 57.5, 0), App.Vector(0, 0, 1), 1), math.radians(-90), math.radians(0)), False)
sketch4.addGeometry(Part.LineSegment(App.Vector(-57.5, 56.5, 0), App.Vector(-86.5, 56.5, 0)), False)
sketch4.addGeometry(Part.LineSegment(App.Vector(-86.5, 56.5, 0), App.Vector(-86.5, -56.5, 0)), False)
sketch4.addGeometry(Part.LineSegment(App.Vector(-86.5, -56.5, 0), App.Vector(-57.5, -56.5, 0)), False)
sketch4.addGeometry(Part.ArcOfCircle(Part.Circle(App.Vector(-57.5, -57.5, 0), App.Vector(0, 0, 1), 1), math.radians(0), math.radians(90)), False)
sketch4.addGeometry(Part.LineSegment(App.Vector(-56.5, -57.5, 0), App.Vector(-56.5, -86.5, 0)), False)
sketch4.addGeometry(Part.LineSegment(App.Vector(-56.5, -86.5, 0), App.Vector(56.5, -86.5, 0)), False)
sketch4.addGeometry(Part.LineSegment(App.Vector(56.5, -86.5, 0), App.Vector(56.5, -57.5, 0)), False)
sketch4.addGeometry(Part.ArcOfCircle(Part.Circle(App.Vector(57.5, -57.5, 0), App.Vector(0, 0, 1), 1), math.radians(90), math.radians(180)), False)
sketch4.addGeometry(Part.LineSegment(App.Vector(46.5, -76.5, 0), App.Vector(-46.5, -76.5, 0)), False)
sketch4.addGeometry(Part.LineSegment(App.Vector(-46.5, -76.5, 0), App.Vector(-46.5, -57.5, 0)), False)
sketch4.addGeometry(Part.ArcOfCircle(Part.Circle(App.Vector(-57.5, -57.5, 0), App.Vector(0, 0, 1), 11), math.radians(0), math.radians(90)), False)
sketch4.addGeometry(Part.LineSegment(App.Vector(-57.5, -46.5, 0), App.Vector(-76.5, -46.5, 0)), False)
sketch4.addGeometry(Part.LineSegment(App.Vector(-76.5, -46.5, 0), App.Vector(-76.5, 46.5, 0)), False)
sketch4.addGeometry(Part.LineSegment(App.Vector(-76.5, 46.5, 0), App.Vector(-57.5, 46.5, 0)), False)
sketch4.addGeometry(Part.ArcOfCircle(Part.Circle(App.Vector(-57.5, 57.5, 0), App.Vector(0, 0, 1), 11), math.radians(-90), math.radians(0)), False)
sketch4.addGeometry(Part.LineSegment(App.Vector(-46.5, 57.5, 0), App.Vector(-46.5, 76.5, 0)), False)
sketch4.addGeometry(Part.LineSegment(App.Vector(-46.5, 76.5, 0), App.Vector(46.5, 76.5, 0)), False)
sketch4.addGeometry(Part.LineSegment(App.Vector(46.5, 76.5, 0), App.Vector(46.5, 57.5, 0)), False)
sketch4.addGeometry(Part.ArcOfCircle(Part.Circle(App.Vector(57.5, 57.5, 0), App.Vector(0, 0, 1), 11), math.radians(180), math.radians(270)), False)
sketch4.addGeometry(Part.LineSegment(App.Vector(57.5, 46.5, 0), App.Vector(76.5, 46.5, 0)), False)
sketch4.addGeometry(Part.LineSegment(App.Vector(76.5, 46.5, 0), App.Vector(76.5, -46.5, 0)), False)
sketch4.addGeometry(Part.LineSegment(App.Vector(76.5, -46.5, 0), App.Vector(57.5, -46.5, 0)), False)
sketch4.addGeometry(Part.ArcOfCircle(Part.Circle(App.Vector(57.5, -57.5, 0), App.Vector(0, 0, 1), 11), math.radians(90), math.radians(180)), False)
sketch4.addGeometry(Part.LineSegment(App.Vector(46.5, -57.5, 0), App.Vector(46.5, -76.5, 0)), False)
sketch4.addConstraint(Sketcher.Constraint("Coincident", 0, 2, 1, 1))
sketch4.addConstraint(Sketcher.Constraint("Coincident", 1, 2, 2, 1))
sketch4.addConstraint(Sketcher.Constraint("Tangent", 2, 2, 3, 2))
sketch4.addConstraint(Sketcher.Constraint("Tangent", 3, 1, 4, 1))
sketch4.addConstraint(Sketcher.Constraint("Coincident", 4, 2, 5, 1))
sketch4.addConstraint(Sketcher.Constraint("Coincident", 5, 2, 6, 1))
sketch4.addConstraint(Sketcher.Constraint("Tangent", 6, 2, 7, 2))
sketch4.addConstraint(Sketcher.Constraint("Tangent", 7, 1, 8, 1))
sketch4.addConstraint(Sketcher.Constraint("Coincident", 8, 2, 9, 1))
sketch4.addConstraint(Sketcher.Constraint("Coincident", 9, 2, 10, 1))
sketch4.addConstraint(Sketcher.Constraint("Tangent", 10, 2, 11, 2))
sketch4.addConstraint(Sketcher.Constraint("Tangent", 11, 1, 12, 1))
sketch4.addConstraint(Sketcher.Constraint("Coincident", 12, 2, 13, 1))
sketch4.addConstraint(Sketcher.Constraint("Coincident", 13, 2, 14, 1))
sketch4.addConstraint(Sketcher.Constraint("Tangent", 14, 2, 15, 2))
sketch4.addConstraint(Sketcher.Constraint("Tangent", 15, 1, 0, 1))
sketch4.addConstraint(Sketcher.Constraint("Coincident", 16, 2, 17, 1))
sketch4.addConstraint(Sketcher.Constraint("Tangent", 17, 2, 18, 1))
sketch4.addConstraint(Sketcher.Constraint("Tangent", 18, 2, 19, 1))
sketch4.addConstraint(Sketcher.Constraint("Coincident", 19, 2, 20, 1))
sketch4.addConstraint(Sketcher.Constraint("Coincident", 20, 2, 21, 1))
sketch4.addConstraint(Sketcher.Constraint("Tangent", 21, 2, 22, 1))
sketch4.addConstraint(Sketcher.Constraint("Tangent", 22, 2, 23, 1))
sketch4.addConstraint(Sketcher.Constraint("Coincident", 23, 2, 24, 1))
sketch4.addConstraint(Sketcher.Constraint("Coincident", 24, 2, 25, 1))
sketch4.addConstraint(Sketcher.Constraint("Tangent", 25, 2, 26, 1))
sketch4.addConstraint(Sketcher.Constraint("Tangent", 26, 2, 27, 1))
sketch4.addConstraint(Sketcher.Constraint("Coincident", 27, 2, 28, 1))
sketch4.addConstraint(Sketcher.Constraint("Coincident", 28, 2, 29, 1))
sketch4.addConstraint(Sketcher.Constraint("Tangent", 29, 2, 30, 1))
sketch4.addConstraint(Sketcher.Constraint("Tangent", 30, 2, 31, 1))
sketch4.addConstraint(Sketcher.Constraint("Coincident", 31, 2, 16, 1))
sketch4.addConstraint(Sketcher.Constraint("Horizontal", 0))
sketch4.addConstraint(Sketcher.Constraint("Vertical", 1))
sketch4.addConstraint(Sketcher.Constraint("Horizontal", 2))
sketch4.addConstraint(Sketcher.Constraint("Vertical", 4))
sketch4.addConstraint(Sketcher.Constraint("Horizontal", 5))
sketch4.addConstraint(Sketcher.Constraint("Vertical", 6))
sketch4.addConstraint(Sketcher.Constraint("Horizontal", 8))
sketch4.addConstraint(Sketcher.Constraint("Vertical", 9))
sketch4.addConstraint(Sketcher.Constraint("Horizontal", 10))
sketch4.addConstraint(Sketcher.Constraint("Vertical", 12))
sketch4.addConstraint(Sketcher.Constraint("Horizontal", 13))
sketch4.addConstraint(Sketcher.Constraint("Vertical", 14))
sketch4.addConstraint(Sketcher.Constraint("Horizontal", 16))
sketch4.addConstraint(Sketcher.Constraint("Vertical", 17))
sketch4.addConstraint(Sketcher.Constraint("Horizontal", 19))
sketch4.addConstraint(Sketcher.Constraint("Vertical", 20))
sketch4.addConstraint(Sketcher.Constraint("Horizontal", 21))
sketch4.addConstraint(Sketcher.Constraint("Vertical", 23))
sketch4.addConstraint(Sketcher.Constraint("Horizontal", 24))
sketch4.addConstraint(Sketcher.Constraint("Vertical", 25))
sketch4.addConstraint(Sketcher.Constraint("Horizontal", 27))
sketch4.addConstraint(Sketcher.Constraint("Vertical", 28))
sketch4.addConstraint(Sketcher.Constraint("Horizontal", 29))
sketch4.addConstraint(Sketcher.Constraint("Vertical", 31))
sketch4.addConstraint(Sketcher.Constraint("Coincident", 18, 3, 11, 3))
sketch4.addConstraint(Sketcher.Constraint("Coincident", 22, 3, 7, 3))
sketch4.addConstraint(Sketcher.Constraint("Coincident", 26, 3, 3, 3))
sketch4.addConstraint(Sketcher.Constraint("Coincident", 30, 3, 15, 3))
sketch4.addConstraint(Sketcher.Constraint("Equal", 3, 7))
sketch4.addConstraint(Sketcher.Constraint("Equal", 7, 11))
sketch4.addConstraint(Sketcher.Constraint("Equal", 11, 15))
sketch4.addConstraint(Sketcher.Constraint("Equal", 18, 22))
sketch4.addConstraint(Sketcher.Constraint("Equal", 22, 26))
sketch4.addConstraint(Sketcher.Constraint("Equal", 26, 30))
sketch4.addConstraint(Sketcher.Constraint("Symmetric", 3, 3, 11, 3, -1, 1))
sketch4.addConstraint(Sketcher.Constraint("Symmetric", 7, 3, 15, 3, -1, 1))
sketch4.addConstraint(Sketcher.Constraint("Symmetric", 3, 3, 7, 3, -2))
sketch4.addConstraint(Sketcher.Constraint("Equal", 2, 8))
sketch4.addConstraint(Sketcher.Constraint("Equal", 21, 27))
sketch4.addConstraint(Sketcher.Constraint("Equal", 13, 1))
sketch4.addConstraint(Sketcher.Constraint("Equal", 10, 4))
sketch4.addConstraint(Sketcher.Constraint("Equal", 6, 12))
sketch4.addConstraint(Sketcher.Constraint("Equal", 29, 17))
sketch4.addConstraint(Sketcher.Constraint("Equal", 17, 23))
sketch4.addConstraint(Sketcher.Constraint("Radius", 3, Q("1 mm")))
sketch4.addConstraint(Sketcher.Constraint("Radius", 18, Q("11 mm")))
sketch4.addConstraint(Sketcher.Constraint("DistanceX", 0, 1, 0, 2, Q("29 mm")))
sketch4.addConstraint(Sketcher.Constraint("DistanceX", 5, 2, 5, 1, Q("113 mm")))
sketch4.addConstraint(Sketcher.Constraint("DistanceX", 19, 2, 19, 1, Q("19 mm")))
pocket2 = body.newObject("PartDesign::Pocket", "Pocket001")
pocket2.Profile = sketch4
pocket2.Length = 1
pocket2.Reversed = True
pocket2.TaperAngle = 45

# Sketch on XY plane
sketch5 = body.newObject("Sketcher::SketchObject", "Sketch004")
sketch5.AttachmentSupport = (doc.getObject("XY_Plane"), [""])
sketch5.MapMode = "FlatFace"
sketch5.AttachmentOffset = App.Placement(App.Vector(0, 0, 224), App.Rotation())
sketch5.addGeometry(Part.Circle(App.Vector(0, 0, 0), App.Vector(0, 0, 1), 18), False)
sketch5.addConstraint(Sketcher.Constraint("Coincident", 0, 3, -1, 1))
sketch5.addConstraint(Sketcher.Constraint("Diameter", 0, Q("35.163575 mm")))
pad3 = body.newObject("PartDesign::Pad", "Pad002")
pad3.Profile = sketch5
pad3.Length = 5
doc.recompute()

fillet = body.newObject("PartDesign::Fillet", "Fillet")
fillet.Base = (pad3, edges_at(pad3, [(-17.582, 0, 229)]))
fillet.Radius = 2

doc.recompute()
